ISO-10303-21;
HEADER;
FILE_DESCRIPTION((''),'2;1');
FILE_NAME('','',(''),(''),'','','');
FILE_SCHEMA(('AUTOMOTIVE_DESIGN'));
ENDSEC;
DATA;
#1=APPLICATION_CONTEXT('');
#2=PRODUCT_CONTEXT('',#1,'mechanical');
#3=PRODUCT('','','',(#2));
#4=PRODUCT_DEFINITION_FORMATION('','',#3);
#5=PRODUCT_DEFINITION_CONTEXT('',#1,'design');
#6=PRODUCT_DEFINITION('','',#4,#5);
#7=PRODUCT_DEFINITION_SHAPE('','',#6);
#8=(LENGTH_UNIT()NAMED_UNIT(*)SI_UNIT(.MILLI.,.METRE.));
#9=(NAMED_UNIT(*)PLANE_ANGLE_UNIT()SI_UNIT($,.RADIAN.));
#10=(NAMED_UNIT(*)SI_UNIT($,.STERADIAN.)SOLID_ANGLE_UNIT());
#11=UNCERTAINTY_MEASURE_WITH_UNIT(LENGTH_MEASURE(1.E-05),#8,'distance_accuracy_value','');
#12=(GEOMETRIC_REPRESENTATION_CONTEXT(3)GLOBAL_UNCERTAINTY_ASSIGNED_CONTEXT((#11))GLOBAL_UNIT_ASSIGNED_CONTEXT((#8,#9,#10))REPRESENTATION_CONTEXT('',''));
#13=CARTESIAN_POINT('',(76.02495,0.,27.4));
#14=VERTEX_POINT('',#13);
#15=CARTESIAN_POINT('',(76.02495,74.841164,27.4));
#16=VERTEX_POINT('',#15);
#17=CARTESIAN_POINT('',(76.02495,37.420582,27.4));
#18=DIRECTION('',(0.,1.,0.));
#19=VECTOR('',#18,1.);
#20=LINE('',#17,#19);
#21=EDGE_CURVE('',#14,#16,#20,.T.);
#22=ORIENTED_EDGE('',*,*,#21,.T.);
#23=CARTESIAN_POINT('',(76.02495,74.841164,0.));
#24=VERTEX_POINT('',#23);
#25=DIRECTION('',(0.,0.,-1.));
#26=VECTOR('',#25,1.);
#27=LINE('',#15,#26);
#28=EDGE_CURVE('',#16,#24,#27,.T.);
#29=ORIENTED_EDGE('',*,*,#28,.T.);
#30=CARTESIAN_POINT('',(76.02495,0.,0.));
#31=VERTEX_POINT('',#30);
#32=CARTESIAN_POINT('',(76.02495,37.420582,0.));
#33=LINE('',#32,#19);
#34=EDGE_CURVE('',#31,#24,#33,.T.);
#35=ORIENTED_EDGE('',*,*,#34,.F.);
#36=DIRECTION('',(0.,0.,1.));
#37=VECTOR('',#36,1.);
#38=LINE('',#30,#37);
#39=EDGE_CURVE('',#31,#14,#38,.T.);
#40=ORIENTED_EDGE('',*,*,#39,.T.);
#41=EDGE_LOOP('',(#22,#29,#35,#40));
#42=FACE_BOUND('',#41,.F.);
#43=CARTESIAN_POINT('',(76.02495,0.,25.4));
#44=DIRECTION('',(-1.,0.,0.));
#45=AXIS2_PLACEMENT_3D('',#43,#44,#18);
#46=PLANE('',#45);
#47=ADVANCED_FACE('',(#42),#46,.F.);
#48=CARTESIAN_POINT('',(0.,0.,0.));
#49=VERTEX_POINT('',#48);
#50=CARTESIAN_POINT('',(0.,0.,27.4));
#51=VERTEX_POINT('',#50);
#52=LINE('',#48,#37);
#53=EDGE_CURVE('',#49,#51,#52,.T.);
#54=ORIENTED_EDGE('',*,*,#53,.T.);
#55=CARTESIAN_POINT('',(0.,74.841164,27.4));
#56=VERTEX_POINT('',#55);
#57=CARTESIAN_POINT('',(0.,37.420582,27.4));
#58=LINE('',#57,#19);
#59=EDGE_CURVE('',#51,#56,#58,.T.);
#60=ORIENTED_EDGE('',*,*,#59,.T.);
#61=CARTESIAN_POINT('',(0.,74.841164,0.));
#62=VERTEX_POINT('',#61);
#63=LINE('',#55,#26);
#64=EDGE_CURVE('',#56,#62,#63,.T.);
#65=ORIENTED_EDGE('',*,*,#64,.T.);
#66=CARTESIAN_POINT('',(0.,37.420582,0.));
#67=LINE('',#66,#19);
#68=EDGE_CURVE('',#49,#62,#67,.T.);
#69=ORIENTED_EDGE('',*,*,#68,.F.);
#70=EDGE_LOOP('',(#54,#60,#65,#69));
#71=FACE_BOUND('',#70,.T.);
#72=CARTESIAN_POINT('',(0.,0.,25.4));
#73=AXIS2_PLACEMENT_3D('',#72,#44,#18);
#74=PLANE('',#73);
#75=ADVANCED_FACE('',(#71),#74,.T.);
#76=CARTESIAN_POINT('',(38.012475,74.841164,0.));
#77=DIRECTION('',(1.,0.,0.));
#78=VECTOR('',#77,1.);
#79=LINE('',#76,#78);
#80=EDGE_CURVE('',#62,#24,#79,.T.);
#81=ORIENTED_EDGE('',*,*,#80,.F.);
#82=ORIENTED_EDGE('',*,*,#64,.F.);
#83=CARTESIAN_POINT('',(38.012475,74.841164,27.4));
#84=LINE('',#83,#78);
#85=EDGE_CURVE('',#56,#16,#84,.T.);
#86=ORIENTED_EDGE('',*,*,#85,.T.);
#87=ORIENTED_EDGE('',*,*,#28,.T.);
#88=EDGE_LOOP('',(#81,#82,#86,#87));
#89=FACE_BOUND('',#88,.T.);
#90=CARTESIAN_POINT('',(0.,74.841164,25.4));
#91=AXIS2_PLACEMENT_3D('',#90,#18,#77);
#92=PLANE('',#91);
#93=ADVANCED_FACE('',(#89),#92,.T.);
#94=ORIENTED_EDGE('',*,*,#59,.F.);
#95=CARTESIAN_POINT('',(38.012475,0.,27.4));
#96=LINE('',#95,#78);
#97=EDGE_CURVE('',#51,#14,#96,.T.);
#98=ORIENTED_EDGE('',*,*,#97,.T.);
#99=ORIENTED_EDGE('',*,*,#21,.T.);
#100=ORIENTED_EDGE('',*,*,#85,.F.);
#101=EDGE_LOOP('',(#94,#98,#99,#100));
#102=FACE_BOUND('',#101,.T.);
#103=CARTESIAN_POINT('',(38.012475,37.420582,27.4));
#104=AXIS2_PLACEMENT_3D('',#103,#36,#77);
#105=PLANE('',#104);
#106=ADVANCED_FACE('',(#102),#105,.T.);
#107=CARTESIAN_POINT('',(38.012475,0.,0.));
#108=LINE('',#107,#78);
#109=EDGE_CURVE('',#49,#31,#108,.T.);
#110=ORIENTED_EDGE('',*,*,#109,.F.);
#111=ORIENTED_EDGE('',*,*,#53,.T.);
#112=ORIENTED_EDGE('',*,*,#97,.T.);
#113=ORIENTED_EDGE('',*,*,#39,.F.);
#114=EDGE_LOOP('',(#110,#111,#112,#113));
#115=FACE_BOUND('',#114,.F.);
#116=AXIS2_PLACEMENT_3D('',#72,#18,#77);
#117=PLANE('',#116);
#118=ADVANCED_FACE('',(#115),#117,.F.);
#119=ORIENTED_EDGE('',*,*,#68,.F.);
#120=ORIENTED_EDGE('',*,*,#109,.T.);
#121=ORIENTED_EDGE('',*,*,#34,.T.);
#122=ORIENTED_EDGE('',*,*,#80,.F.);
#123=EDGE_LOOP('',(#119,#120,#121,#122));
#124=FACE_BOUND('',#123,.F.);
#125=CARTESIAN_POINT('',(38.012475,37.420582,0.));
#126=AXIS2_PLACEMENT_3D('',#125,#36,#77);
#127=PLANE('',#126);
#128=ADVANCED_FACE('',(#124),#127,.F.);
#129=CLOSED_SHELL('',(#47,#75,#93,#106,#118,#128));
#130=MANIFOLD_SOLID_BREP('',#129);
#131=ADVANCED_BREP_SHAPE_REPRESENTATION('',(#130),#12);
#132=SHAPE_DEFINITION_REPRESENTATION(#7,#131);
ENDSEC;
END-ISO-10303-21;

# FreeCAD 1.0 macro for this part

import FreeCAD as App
import Part
import Sketcher

V = App.Vector
Q = App.Units.Quantity

doc = App.newDocument("Part")
body = doc.addObject("PartDesign::Body", "Body")

# Sketch on XY plane
sketch1 = doc.addObject("Sketcher::SketchObject", "Sketch")
body.addObject(sketch1)
sketch1.AttachmentSupport = (doc.XY_Plane, [""])
sketch1.MapMode = "FlatFace"
sketch1.addGeometry(Part.LineSegment(V(0, 75, 0), V(0, 0, 0)), False)
sketch1.addGeometry(Part.LineSegment(V(0, 0, 0), V(76, 0, 0)), False)
sketch1.addGeometry(Part.LineSegment(V(76, 0, 0), V(76, 75, 0)), False)
sketch1.addGeometry(Part.LineSegment(V(76, 75, 0), V(0, 75, 0)), False)
sketch1.addConstraint(Sketcher.Constraint("Coincident", 0, 2, 1, 1))
sketch1.addConstraint(Sketcher.Constraint("Coincident", 1, 2, 2, 1))
sketch1.addConstraint(Sketcher.Constraint("Coincident", 2, 2, 3, 1))
sketch1.addConstraint(Sketcher.Constraint("Coincident", 3, 2, 0, 1))
sketch1.addConstraint(Sketcher.Constraint("Vertical", 0))
sketch1.addConstraint(Sketcher.Constraint("Horizontal", 1))
sketch1.addConstraint(Sketcher.Constraint("Vertical", 2))
sketch1.addConstraint(Sketcher.Constraint("Horizontal", 3))
sketch1.addConstraint(Sketcher.Constraint("Coincident", 0, 2, -1, 1))
sketch1.addConstraint(Sketcher.Constraint("DistanceX", 1, 1, 1, 2, Q("76.02495 mm")))
sketch1.addConstraint(Sketcher.Constraint("DistanceY", 0, 2, 0, 1, Q("74.841164 mm")))
pad1 = doc.addObject("PartDesign::Pad", "Pad")
body.addObject(pad1)
pad1.Profile = sketch1
pad1.Length = 25.4

# Sketch on XY plane
sketch2 = doc.addObject("Sketcher::SketchObject", "Sketch001")
body.addObject(sketch2)
sketch2.AttachmentSupport = (doc.XY_Plane, [""])
sketch2.MapMode = "FlatFace"
sketch2.AttachmentOffset = App.Placement(V(0, 0, 25.4), App.Rotation())
sketch2.addGeometry(Part.LineSegment(V(0, 75, 0), V(0, 0, 0)), False)
sketch2.addGeometry(Part.LineSegment(V(0, 0, 0), V(76, 0, 0)), False)
sketch2.addGeometry(Part.LineSegment(V(76, 0, 0), V(76, 75, 0)), False)
sketch2.addGeometry(Part.LineSegment(V(76, 75, 0), V(0, 75, 0)), False)
sketch2.addConstraint(Sketcher.Constraint("Coincident", 0, 2, 1, 1))
sketch2.addConstraint(Sketcher.Constraint("Coincident", 1, 2, 2, 1))
sketch2.addConstraint(Sketcher.Constraint("Coincident", 2, 2, 3, 1))
sketch2.addConstraint(Sketcher.Constraint("Coincident", 3, 2, 0, 1))
sketch2.addConstraint(Sketcher.Constraint("Vertical", 0))
sketch2.addConstraint(Sketcher.Constraint("Horizontal", 1))
sketch2.addConstraint(Sketcher.Constraint("Vertical", 2))
sketch2.addConstraint(Sketcher.Constraint("Horizontal", 3))
sketch2.addConstraint(Sketcher.Constraint("Coincident", 0, 2, -1, 1))
sketch2.addConstraint(Sketcher.Constraint("DistanceX", 1, 1, 1, 2, Q("76.02495 mm")))
sketch2.addConstraint(Sketcher.Constraint("DistanceY", 0, 2, 0, 1, Q("74.841164 mm")))
pad2 = doc.addObject("PartDesign::Pad", "Pad001")
body.addObject(pad2)
pad2.Profile = sketch2
pad2.Length = 2

doc.recompute()
